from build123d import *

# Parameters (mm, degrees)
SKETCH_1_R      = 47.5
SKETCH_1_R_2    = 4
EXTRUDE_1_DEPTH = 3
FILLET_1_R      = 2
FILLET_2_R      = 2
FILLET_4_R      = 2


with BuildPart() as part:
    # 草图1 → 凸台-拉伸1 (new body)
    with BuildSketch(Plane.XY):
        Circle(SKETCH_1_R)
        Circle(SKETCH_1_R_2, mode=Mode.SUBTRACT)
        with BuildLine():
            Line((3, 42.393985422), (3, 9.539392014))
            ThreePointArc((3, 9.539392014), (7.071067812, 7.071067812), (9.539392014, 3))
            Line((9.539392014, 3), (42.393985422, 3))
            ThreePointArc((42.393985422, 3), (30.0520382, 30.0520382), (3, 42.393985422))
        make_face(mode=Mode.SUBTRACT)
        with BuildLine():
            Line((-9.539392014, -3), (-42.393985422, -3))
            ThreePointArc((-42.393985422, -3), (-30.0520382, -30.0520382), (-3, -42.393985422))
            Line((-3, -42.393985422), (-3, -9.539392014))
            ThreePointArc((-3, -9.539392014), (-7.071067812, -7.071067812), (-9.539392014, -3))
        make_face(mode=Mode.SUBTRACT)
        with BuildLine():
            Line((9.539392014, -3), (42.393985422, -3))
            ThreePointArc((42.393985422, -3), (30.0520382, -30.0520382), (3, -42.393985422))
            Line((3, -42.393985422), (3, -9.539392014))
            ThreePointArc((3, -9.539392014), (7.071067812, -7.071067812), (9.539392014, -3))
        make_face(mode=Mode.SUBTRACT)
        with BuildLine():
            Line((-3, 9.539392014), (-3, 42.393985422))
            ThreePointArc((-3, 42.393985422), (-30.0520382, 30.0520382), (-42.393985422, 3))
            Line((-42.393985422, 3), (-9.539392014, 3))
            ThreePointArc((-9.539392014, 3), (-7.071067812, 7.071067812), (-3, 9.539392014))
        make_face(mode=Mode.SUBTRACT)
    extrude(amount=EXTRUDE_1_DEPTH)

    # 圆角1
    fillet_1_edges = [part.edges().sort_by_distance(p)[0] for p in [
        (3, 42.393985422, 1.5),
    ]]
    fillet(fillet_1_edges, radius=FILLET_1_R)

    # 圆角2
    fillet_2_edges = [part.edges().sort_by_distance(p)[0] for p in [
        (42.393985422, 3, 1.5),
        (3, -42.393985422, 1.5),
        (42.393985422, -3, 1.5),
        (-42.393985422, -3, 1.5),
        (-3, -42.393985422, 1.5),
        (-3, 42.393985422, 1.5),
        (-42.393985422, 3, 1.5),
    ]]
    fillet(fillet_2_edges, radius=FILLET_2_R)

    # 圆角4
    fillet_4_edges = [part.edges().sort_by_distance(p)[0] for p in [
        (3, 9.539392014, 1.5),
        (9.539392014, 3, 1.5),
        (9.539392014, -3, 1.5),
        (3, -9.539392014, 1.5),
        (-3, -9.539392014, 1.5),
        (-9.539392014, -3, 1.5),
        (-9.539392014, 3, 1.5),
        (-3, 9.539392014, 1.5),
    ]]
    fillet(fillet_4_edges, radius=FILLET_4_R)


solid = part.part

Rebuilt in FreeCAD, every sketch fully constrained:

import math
import FreeCAD as App
import Part
import Sketcher


def edges_at(feature, points):
    """Names of the edges that pass closest to the given points."""
    edges = feature.Shape.Edges
    near = lambda p: min(range(len(edges)), key=lambda i: edges[i].distToShape(Part.Vertex(*p))[0])
    return sorted({f"Edge{near(p) + 1}" for p in points})

doc = App.newDocument("Part")
body = doc.addObject("PartDesign::Body", "Body")

sketch1 = body.newObject("Sketcher::SketchObject", "Sketch")
sketch1.AttachmentSupport = (doc.getObject("XY_Plane"), [""])
sketch1.MapMode = "FlatFace"
sketch1.addGeometry(Part.Circle(App.Vector(0, 0, 0), App.Vector(0, 0, 1), 47.5), False)
sketch1.addGeometry(Part.LineSegment(App.Vector(-42.4, -3, 0), App.Vector(-9.5, -3, 0)), False)
sketch1.addGeometry(Part.ArcOfCircle(Part.Circle(App.Vector(0, 0, 0), App.Vector(0, 0, 1), 10), math.radians(-163), math.radians(-107)), False)
sketch1.addGeometry(Part.LineSegment(App.Vector(-3, -9.5, 0), App.Vector(-3, -42.4, 0)), False)
sketch1.addGeometry(Part.ArcOfCircle(Part.Circle(App.Vector(0, 0, 0), App.Vector(0, 0, 1), 42.5), math.radians(-176), math.radians(-94)), False)
sketch1.addGeometry(Part.Circle(App.Vector(0, 0, 0), App.Vector(0, 0, 1), 4), False)
sketch1.addGeometry(Part.ArcOfCircle(Part.Circle(App.Vector(0, 0, 0), App.Vector(0, 0, 1), 10), math.radians(-73), math.radians(-17)), False)
sketch1.addGeometry(Part.LineSegment(App.Vector(9.5, -3, 0), App.Vector(42.4, -3, 0)), False)
sketch1.addGeometry(Part.ArcOfCircle(Part.Circle(App.Vector(0, 0, 0), App.Vector(0, 0, 1), 42.5), math.radians(-86), math.radians(-4)), False)
sketch1.addGeometry(Part.LineSegment(App.Vector(3, -42.4, 0), App.Vector(3, -9.5, 0)), False)
sketch1.addGeometry(Part.LineSegment(App.Vector(-3, 42.4, 0), App.Vector(-3, 9.5, 0)), False)
sketch1.addGeometry(Part.ArcOfCircle(Part.Circle(App.Vector(0, 0, 0), App.Vector(0, 0, 1), 10), math.radians(107), math.radians(163)), False)
sketch1.addGeometry(Part.LineSegment(App.Vector(-9.5, 3, 0), App.Vector(-42.4, 3, 0)), False)
sketch1.addGeometry(Part.ArcOfCircle(Part.Circle(App.Vector(0, 0, 0), App.Vector(0, 0, 1), 42.5), math.radians(94), math.radians(176)), False)
sketch1.addGeometry(Part.LineSegment(App.Vector(3, 9.5, 0), App.Vector(3, 42.4, 0)), False)
sketch1.addGeometry(Part.ArcOfCircle(Part.Circle(App.Vector(0, 0, 0), App.Vector(0, 0, 1), 42.5), math.radians(4), math.radians(86)), False)
sketch1.addGeometry(Part.LineSegment(App.Vector(42.4, 3, 0), App.Vector(9.5, 3, 0)), False)
sketch1.addGeometry(Part.ArcOfCircle(Part.Circle(App.Vector(0, 0, 0), App.Vector(0, 0, 1), 10), math.radians(17), math.radians(73)), False)
sketch1.addConstraint(Sketcher.Constraint("Coincident", 1, 2, 2, 1))
sketch1.addConstraint(Sketcher.Constraint("Coincident", 2, 2, 3, 1))
sketch1.addConstraint(Sketcher.Constraint("Coincident", 3, 2, 4, 2))
sketch1.addConstraint(Sketcher.Constraint("Coincident", 4, 1, 1, 1))
sketch1.addConstraint(Sketcher.Constraint("Coincident", 6, 2, 7, 1))
sketch1.addConstraint(Sketcher.Constraint("Coincident", 7, 2, 8, 2))
sketch1.addConstraint(Sketcher.Constraint("Coincident", 8, 1, 9, 1))
sketch1.addConstraint(Sketcher.Constraint("Coincident", 9, 2, 6, 1))
sketch1.addConstraint(Sketcher.Constraint("Coincident", 10, 2, 11, 1))
sketch1.addConstraint(Sketcher.Constraint("Coincident", 11, 2, 12, 1))
sketch1.addConstraint(Sketcher.Constraint("Coincident", 12, 2, 13, 2))
sketch1.addConstraint(Sketcher.Constraint("Coincident", 13, 1, 10, 1))
sketch1.addConstraint(Sketcher.Constraint("Coincident", 14, 2, 15, 2))
sketch1.addConstraint(Sketcher.Constraint("Coincident", 15, 1, 16, 1))
sketch1.addConstraint(Sketcher.Constraint("Coincident", 16, 2, 17, 1))
sketch1.addConstraint(Sketcher.Constraint("Coincident", 17, 2, 14, 1))
sketch1.addConstraint(Sketcher.Constraint("Horizontal", 1))
sketch1.addConstraint(Sketcher.Constraint("Vertical", 3))
sketch1.addConstraint(Sketcher.Constraint("Horizontal", 7))
sketch1.addConstraint(Sketcher.Constraint("Vertical", 9))
sketch1.addConstraint(Sketcher.Constraint("Vertical", 10))
sketch1.addConstraint(Sketcher.Constraint("Horizontal", 12))
sketch1.addConstraint(Sketcher.Constraint("Vertical", 14))
sketch1.addConstraint(Sketcher.Constraint("Horizontal", 16))
sketch1.addConstraint(Sketcher.Constraint("Coincident", 0, 3, -1, 1))
sketch1.addConstraint(Sketcher.Constraint("Coincident", 2, 3, -1, 1))
sketch1.addConstraint(Sketcher.Constraint("Coincident", 4, 3, -1, 1))
sketch1.addConstraint(Sketcher.Constraint("Coincident", 5, 3, -1, 1))
sketch1.addConstraint(Sketcher.Constraint("Coincident", 6, 3, -1, 1))
sketch1.addConstraint(Sketcher.Constraint("Coincident", 8, 3, -1, 1))
sketch1.addConstraint(Sketcher.Constraint("Coincident", 11, 3, -1, 1))
sketch1.addConstraint(Sketcher.Constraint("Coincident", 13, 3, -1, 1))
sketch1.addConstraint(Sketcher.Constraint("Coincident", 15, 3, -1, 1))
sketch1.addConstraint(Sketcher.Constraint("Coincident", 17, 3, -1, 1))
sketch1.addConstraint(Sketcher.Constraint("Equal", 2, 6))
sketch1.addConstraint(Sketcher.Constraint("Equal", 4, 8))
sketch1.addConstraint(Sketcher.Constraint("Equal", 6, 11))
sketch1.addConstraint(Sketcher.Constraint("Equal", 8, 13))
sketch1.addConstraint(Sketcher.Constraint("Equal", 13, 15))
sketch1.addConstraint(Sketcher.Constraint("Equal", 11, 17))
sketch1.addConstraint(Sketcher.Constraint("Horizontal", 4, 1, 6, 2))
sketch1.addConstraint(Sketcher.Constraint("Horizontal", 3, 2, 8, 1))
sketch1.addConstraint(Sketcher.Constraint("Horizontal", 13, 1, 14, 2))
sketch1.addConstraint(Sketcher.Constraint("Horizontal", 12, 2, 15, 1))
sketch1.addConstraint(Sketcher.Constraint("Vertical", 3, 2, 10, 2))
sketch1.addConstraint(Sketcher.Constraint("Vertical", 1, 2, 11, 2))
sketch1.addConstraint(Sketcher.Constraint("Equal", 16, 3))
sketch1.addConstraint(Sketcher.Constraint("Diameter", 0, 95.0))
sketch1.addConstraint(Sketcher.Constraint("Diameter", 5, 8.0))
sketch1.addConstraint(Sketcher.Constraint("Radius", 2, 10.0))
sketch1.addConstraint(Sketcher.Constraint("Radius", 4, 42.5))
sketch1.addConstraint(Sketcher.Constraint("DistanceY", 1, 2, -1, 1, 3.0))
pad1 = body.newObject("PartDesign::Pad", "Pad")
pad1.Profile = sketch1
pad1.Length = 3
doc.recompute()

fillet = body.newObject("PartDesign::Fillet", "Fillet")
fillet.Base = (pad1, edges_at(pad1, [(3, 42.394, 1.5)]))
fillet.Radius = 2
doc.recompute()

fillet2 = body.newObject("PartDesign::Fillet", "Fillet001")
fillet2.Base = (fillet, edges_at(fillet, [
    (42.394, 3, 1.5),
    (3, -42.394, 1.5),
    (42.394, -3, 1.5),
    (-42.394, -3, 1.5),
    (-3, -42.394, 1.5),
    (-3, 42.394, 1.5),
    (-42.394, 3, 1.5),
]))
fillet2.Radius = 2
doc.recompute()

fillet3 = body.newObject("PartDesign::Fillet", "Fillet002")
fillet3.Base = (fillet2, edges_at(fillet2, [
    (3, 9.539, 1.5),
    (9.539, 3, 1.5),
    (9.539, -3, 1.5),
    (3, -9.539, 1.5),
    (-3, -9.539, 1.5),
    (-9.539, -3, 1.5),
    (-9.539, 3, 1.5),
    (-3, 9.539, 1.5),
]))
fillet3.Radius = 2

doc.recompute()
